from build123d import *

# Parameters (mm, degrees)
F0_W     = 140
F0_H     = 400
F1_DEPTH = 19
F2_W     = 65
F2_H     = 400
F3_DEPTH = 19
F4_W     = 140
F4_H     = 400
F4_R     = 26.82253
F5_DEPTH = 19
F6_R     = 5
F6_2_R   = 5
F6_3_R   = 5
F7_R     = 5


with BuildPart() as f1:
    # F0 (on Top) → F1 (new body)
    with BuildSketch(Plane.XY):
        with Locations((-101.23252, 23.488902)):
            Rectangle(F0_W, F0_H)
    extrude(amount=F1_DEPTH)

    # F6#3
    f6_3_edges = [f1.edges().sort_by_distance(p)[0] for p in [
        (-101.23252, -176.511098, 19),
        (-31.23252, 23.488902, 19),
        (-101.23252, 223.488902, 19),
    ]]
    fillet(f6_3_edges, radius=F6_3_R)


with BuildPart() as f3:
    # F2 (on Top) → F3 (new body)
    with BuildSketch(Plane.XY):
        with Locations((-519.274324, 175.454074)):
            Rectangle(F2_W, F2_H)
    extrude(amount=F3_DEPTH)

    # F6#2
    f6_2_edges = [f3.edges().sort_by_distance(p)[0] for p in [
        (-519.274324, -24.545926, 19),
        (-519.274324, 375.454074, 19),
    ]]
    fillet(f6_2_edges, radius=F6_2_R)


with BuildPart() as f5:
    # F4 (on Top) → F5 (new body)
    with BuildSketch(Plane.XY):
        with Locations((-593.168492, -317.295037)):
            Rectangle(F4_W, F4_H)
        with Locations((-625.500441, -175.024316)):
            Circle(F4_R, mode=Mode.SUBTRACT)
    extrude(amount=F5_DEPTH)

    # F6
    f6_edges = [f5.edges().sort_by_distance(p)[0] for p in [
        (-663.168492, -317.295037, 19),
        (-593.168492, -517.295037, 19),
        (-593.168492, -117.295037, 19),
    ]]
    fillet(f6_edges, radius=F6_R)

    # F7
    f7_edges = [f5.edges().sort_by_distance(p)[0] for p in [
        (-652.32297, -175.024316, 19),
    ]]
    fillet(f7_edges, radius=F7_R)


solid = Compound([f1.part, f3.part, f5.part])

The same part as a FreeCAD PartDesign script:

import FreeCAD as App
import Part
import Sketcher


def edges_at(feature, points):
    """Names of the edges that pass closest to the given points."""
    edges = feature.Shape.Edges
    near = lambda p: min(range(len(edges)), key=lambda i: edges[i].distToShape(Part.Vertex(*p))[0])
    return sorted({f"Edge{near(p) + 1}" for p in points})


def add_polygon(sketch, points):
    """Adds a closed chain of lines whose ends are joined by coincident constraints."""
    first, n = sketch.GeometryCount, len(points)
    for a, b in zip(points, points[1:] + points[:1]):
        sketch.addGeometry(Part.LineSegment(App.Vector(*a, 0), App.Vector(*b, 0)), False)
    for i in range(n):
        sketch.addConstraint(Sketcher.Constraint("Coincident", first + i, 2, first + (i + 1) % n, 1))

doc = App.newDocument("Part")
body = doc.addObject("PartDesign::Body", "Body")

sketch1 = body.newObject("Sketcher::SketchObject", "Sketch")
sketch1.AttachmentSupport = (doc.getObject("XY_Plane"), [""])
sketch1.MapMode = "FlatFace"
add_polygon(sketch1, [(-171, 223), (-171, -177), (-31, -177), (-31, 223)])
sketch1.addConstraint(Sketcher.Constraint("Vertical", 0))
sketch1.addConstraint(Sketcher.Constraint("Horizontal", 1))
sketch1.addConstraint(Sketcher.Constraint("Vertical", 2))
sketch1.addConstraint(Sketcher.Constraint("Horizontal", 3))
sketch1.addConstraint(Sketcher.Constraint("DistanceX", 1, 1, 1, 2, 140.0))
sketch1.addConstraint(Sketcher.Constraint("DistanceY", 0, 2, 0, 1, 400.0))
sketch1.addConstraint(Sketcher.Constraint("DistanceY", 0, 2, -1, 1, 176.511098))
sketch1.addConstraint(Sketcher.Constraint("DistanceX", 0, 2, -1, 1, 171.23252))
pad1 = body.newObject("PartDesign::Pad", "Pad")
pad1.Profile = sketch1
pad1.Length = 19
doc.recompute()

fillet = body.newObject("PartDesign::Fillet", "Fillet")
fillet.Base = (pad1, edges_at(pad1, [(-101.233, -176.511, 19), (-31.233, 23.489, 19), (-101.233, 223.489, 19)]))
fillet.Radius = 5
body2 = doc.addObject("PartDesign::Body", "Body001")

sketch2 = body2.newObject("Sketcher::SketchObject", "Sketch001")
sketch2.AttachmentSupport = (doc.getObject("XY_Plane001"), [""])
sketch2.MapMode = "FlatFace"
add_polygon(sketch2, [(-552, 375), (-552, -25), (-487, -25), (-487, 375)])
sketch2.addConstraint(Sketcher.Constraint("Vertical", 0))
sketch2.addConstraint(Sketcher.Constraint("Horizontal", 1))
sketch2.addConstraint(Sketcher.Constraint("Vertical", 2))
sketch2.addConstraint(Sketcher.Constraint("Horizontal", 3))
sketch2.addConstraint(Sketcher.Constraint("DistanceX", 1, 1, 1, 2, 65.0))
sketch2.addConstraint(Sketcher.Constraint("DistanceY", 0, 2, 0, 1, 400.0))
sketch2.addConstraint(Sketcher.Constraint("DistanceX", 0, 2, -1, 1, 551.774324))
sketch2.addConstraint(Sketcher.Constraint("DistanceY", 0, 2, -1, 1, 24.545926))
pad2 = body2.newObject("PartDesign::Pad", "Pad001")
pad2.Profile = sketch2
pad2.Length = 19
doc.recompute()

fillet2 = body2.newObject("PartDesign::Fillet", "Fillet001")
fillet2.Base = (pad2, edges_at(pad2, [(-519.274, -24.546, 19), (-519.274, 375.454, 19)]))
fillet2.Radius = 5
body3 = doc.addObject("PartDesign::Body", "Body002")

sketch3 = body3.newObject("Sketcher::SketchObject", "Sketch002")
sketch3.AttachmentSupport = (doc.getObject("XY_Plane002"), [""])
sketch3.MapMode = "FlatFace"
add_polygon(sketch3, [(-663, -117), (-663, -517), (-523, -517), (-523, -117)])
sketch3.addGeometry(Part.Circle(App.Vector(-626, -175, 0), App.Vector(0, 0, 1), 27), False)
sketch3.addConstraint(Sketcher.Constraint("Vertical", 0))
sketch3.addConstraint(Sketcher.Constraint("Horizontal", 1))
sketch3.addConstraint(Sketcher.Constraint("Vertical", 2))
sketch3.addConstraint(Sketcher.Constraint("Horizontal", 3))
sketch3.addConstraint(Sketcher.Constraint("DistanceX", 1, 1, 1, 2, 140.0))
sketch3.addConstraint(Sketcher.Constraint("DistanceY", 0, 2, 0, 1, 400.0))
sketch3.addConstraint(Sketcher.Constraint("Diameter", 4, 53.64506))
sketch3.addConstraint(Sketcher.Constraint("DistanceX", 4, 3, -1, 1, 625.500441))
sketch3.addConstraint(Sketcher.Constraint("DistanceX", 0, 2, -1, 1, 663.168492))
sketch3.addConstraint(Sketcher.Constraint("DistanceY", 0, 2, 4, 3, 342.270721))
sketch3.addConstraint(Sketcher.Constraint("DistanceY", 4, 3, -1, 1, 175.024316))
pad3 = body3.newObject("PartDesign::Pad", "Pad002")
pad3.Profile = sketch3
pad3.Length = 19
doc.recompute()

fillet3 = body3.newObject("PartDesign::Fillet", "Fillet002")
fillet3.Base = (pad3, edges_at(pad3, [(-663.168, -317.295, 19), (-593.168, -517.295, 19), (-593.168, -117.295, 19)]))
fillet3.Radius = 5
doc.recompute()

fillet4 = body3.newObject("PartDesign::Fillet", "Fillet003")
fillet4.Base = (fillet3, edges_at(fillet3, [(-652.323, -175.024, 19)]))
fillet4.Radius = 5

doc.recompute()
